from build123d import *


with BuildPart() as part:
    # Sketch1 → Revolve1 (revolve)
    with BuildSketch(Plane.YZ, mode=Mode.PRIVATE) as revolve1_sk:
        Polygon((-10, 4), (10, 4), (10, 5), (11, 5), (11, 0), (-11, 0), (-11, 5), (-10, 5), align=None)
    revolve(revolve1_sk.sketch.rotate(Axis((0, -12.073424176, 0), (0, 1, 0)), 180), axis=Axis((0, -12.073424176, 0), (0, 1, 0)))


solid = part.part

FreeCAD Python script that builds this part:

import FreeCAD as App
import Part
import Sketcher
Q = App.Units.Quantity


def add_polygon(sketch, points):
    """Adds a closed chain of lines whose ends are joined by coincident constraints."""
    first, n = sketch.GeometryCount, len(points)
    for a, b in zip(points, points[1:] + points[:1]):
        sketch.addGeometry(Part.LineSegment(App.Vector(*a, 0), App.Vector(*b, 0)), False)
    for i in range(n):
        sketch.addConstraint(Sketcher.Constraint("Coincident", first + i, 2, first + (i + 1) % n, 1))

doc = App.newDocument("Part")
body = doc.addObject("PartDesign::Body", "Body")

# Sketch on YZ plane
sketch1 = doc.addObject("Sketcher::SketchObject", "Sketch")
body.addObject(sketch1)
sketch1.AttachmentSupport = (doc.YZ_Plane, [""])
sketch1.MapMode = "FlatFace"
add_polygon(sketch1, [(10, 4), (-10, 4), (-10, 5), (-11, 5), (-11, 0), (11, 0), (11, 5), (10, 5)])  # lines 0-7
sketch1.addConstraint(Sketcher.Constraint("Horizontal", 0))
sketch1.addConstraint(Sketcher.Constraint("Vertical", 1))
sketch1.addConstraint(Sketcher.Constraint("Horizontal", 2))
sketch1.addConstraint(Sketcher.Constraint("Vertical", 3))
sketch1.addConstraint(Sketcher.Constraint("Horizontal", 4))
sketch1.addConstraint(Sketcher.Constraint("Vertical", 5))
sketch1.addConstraint(Sketcher.Constraint("Horizontal", 6))
sketch1.addConstraint(Sketcher.Constraint("Vertical", 7))
sketch1.addConstraint(Sketcher.Constraint("Symmetric", 3, 2, 4, 2, -1, 1))
sketch1.addConstraint(Sketcher.Constraint("Symmetric", 1, 2, 6, 2, -2))
sketch1.addConstraint(Sketcher.Constraint("Equal", 6, 1))
sketch1.addConstraint(Sketcher.Constraint("DistanceX", 0, 2, 0, 1, Q("20 mm")))
sketch1.addConstraint(Sketcher.Constraint("DistanceX", 2, 2, 2, 1, Q("1 mm")))
sketch1.addConstraint(Sketcher.Constraint("DistanceY", 3, 2, 3, 1, Q("5 mm")))
revolution = doc.addObject("PartDesign::Revolution", "Revolution")
body.addObject(revolution)
revolution.Profile = sketch1
revolution.ReferenceAxis = (sketch1, ["H_Axis"])
revolution.Angle = 360

doc.recompute()
